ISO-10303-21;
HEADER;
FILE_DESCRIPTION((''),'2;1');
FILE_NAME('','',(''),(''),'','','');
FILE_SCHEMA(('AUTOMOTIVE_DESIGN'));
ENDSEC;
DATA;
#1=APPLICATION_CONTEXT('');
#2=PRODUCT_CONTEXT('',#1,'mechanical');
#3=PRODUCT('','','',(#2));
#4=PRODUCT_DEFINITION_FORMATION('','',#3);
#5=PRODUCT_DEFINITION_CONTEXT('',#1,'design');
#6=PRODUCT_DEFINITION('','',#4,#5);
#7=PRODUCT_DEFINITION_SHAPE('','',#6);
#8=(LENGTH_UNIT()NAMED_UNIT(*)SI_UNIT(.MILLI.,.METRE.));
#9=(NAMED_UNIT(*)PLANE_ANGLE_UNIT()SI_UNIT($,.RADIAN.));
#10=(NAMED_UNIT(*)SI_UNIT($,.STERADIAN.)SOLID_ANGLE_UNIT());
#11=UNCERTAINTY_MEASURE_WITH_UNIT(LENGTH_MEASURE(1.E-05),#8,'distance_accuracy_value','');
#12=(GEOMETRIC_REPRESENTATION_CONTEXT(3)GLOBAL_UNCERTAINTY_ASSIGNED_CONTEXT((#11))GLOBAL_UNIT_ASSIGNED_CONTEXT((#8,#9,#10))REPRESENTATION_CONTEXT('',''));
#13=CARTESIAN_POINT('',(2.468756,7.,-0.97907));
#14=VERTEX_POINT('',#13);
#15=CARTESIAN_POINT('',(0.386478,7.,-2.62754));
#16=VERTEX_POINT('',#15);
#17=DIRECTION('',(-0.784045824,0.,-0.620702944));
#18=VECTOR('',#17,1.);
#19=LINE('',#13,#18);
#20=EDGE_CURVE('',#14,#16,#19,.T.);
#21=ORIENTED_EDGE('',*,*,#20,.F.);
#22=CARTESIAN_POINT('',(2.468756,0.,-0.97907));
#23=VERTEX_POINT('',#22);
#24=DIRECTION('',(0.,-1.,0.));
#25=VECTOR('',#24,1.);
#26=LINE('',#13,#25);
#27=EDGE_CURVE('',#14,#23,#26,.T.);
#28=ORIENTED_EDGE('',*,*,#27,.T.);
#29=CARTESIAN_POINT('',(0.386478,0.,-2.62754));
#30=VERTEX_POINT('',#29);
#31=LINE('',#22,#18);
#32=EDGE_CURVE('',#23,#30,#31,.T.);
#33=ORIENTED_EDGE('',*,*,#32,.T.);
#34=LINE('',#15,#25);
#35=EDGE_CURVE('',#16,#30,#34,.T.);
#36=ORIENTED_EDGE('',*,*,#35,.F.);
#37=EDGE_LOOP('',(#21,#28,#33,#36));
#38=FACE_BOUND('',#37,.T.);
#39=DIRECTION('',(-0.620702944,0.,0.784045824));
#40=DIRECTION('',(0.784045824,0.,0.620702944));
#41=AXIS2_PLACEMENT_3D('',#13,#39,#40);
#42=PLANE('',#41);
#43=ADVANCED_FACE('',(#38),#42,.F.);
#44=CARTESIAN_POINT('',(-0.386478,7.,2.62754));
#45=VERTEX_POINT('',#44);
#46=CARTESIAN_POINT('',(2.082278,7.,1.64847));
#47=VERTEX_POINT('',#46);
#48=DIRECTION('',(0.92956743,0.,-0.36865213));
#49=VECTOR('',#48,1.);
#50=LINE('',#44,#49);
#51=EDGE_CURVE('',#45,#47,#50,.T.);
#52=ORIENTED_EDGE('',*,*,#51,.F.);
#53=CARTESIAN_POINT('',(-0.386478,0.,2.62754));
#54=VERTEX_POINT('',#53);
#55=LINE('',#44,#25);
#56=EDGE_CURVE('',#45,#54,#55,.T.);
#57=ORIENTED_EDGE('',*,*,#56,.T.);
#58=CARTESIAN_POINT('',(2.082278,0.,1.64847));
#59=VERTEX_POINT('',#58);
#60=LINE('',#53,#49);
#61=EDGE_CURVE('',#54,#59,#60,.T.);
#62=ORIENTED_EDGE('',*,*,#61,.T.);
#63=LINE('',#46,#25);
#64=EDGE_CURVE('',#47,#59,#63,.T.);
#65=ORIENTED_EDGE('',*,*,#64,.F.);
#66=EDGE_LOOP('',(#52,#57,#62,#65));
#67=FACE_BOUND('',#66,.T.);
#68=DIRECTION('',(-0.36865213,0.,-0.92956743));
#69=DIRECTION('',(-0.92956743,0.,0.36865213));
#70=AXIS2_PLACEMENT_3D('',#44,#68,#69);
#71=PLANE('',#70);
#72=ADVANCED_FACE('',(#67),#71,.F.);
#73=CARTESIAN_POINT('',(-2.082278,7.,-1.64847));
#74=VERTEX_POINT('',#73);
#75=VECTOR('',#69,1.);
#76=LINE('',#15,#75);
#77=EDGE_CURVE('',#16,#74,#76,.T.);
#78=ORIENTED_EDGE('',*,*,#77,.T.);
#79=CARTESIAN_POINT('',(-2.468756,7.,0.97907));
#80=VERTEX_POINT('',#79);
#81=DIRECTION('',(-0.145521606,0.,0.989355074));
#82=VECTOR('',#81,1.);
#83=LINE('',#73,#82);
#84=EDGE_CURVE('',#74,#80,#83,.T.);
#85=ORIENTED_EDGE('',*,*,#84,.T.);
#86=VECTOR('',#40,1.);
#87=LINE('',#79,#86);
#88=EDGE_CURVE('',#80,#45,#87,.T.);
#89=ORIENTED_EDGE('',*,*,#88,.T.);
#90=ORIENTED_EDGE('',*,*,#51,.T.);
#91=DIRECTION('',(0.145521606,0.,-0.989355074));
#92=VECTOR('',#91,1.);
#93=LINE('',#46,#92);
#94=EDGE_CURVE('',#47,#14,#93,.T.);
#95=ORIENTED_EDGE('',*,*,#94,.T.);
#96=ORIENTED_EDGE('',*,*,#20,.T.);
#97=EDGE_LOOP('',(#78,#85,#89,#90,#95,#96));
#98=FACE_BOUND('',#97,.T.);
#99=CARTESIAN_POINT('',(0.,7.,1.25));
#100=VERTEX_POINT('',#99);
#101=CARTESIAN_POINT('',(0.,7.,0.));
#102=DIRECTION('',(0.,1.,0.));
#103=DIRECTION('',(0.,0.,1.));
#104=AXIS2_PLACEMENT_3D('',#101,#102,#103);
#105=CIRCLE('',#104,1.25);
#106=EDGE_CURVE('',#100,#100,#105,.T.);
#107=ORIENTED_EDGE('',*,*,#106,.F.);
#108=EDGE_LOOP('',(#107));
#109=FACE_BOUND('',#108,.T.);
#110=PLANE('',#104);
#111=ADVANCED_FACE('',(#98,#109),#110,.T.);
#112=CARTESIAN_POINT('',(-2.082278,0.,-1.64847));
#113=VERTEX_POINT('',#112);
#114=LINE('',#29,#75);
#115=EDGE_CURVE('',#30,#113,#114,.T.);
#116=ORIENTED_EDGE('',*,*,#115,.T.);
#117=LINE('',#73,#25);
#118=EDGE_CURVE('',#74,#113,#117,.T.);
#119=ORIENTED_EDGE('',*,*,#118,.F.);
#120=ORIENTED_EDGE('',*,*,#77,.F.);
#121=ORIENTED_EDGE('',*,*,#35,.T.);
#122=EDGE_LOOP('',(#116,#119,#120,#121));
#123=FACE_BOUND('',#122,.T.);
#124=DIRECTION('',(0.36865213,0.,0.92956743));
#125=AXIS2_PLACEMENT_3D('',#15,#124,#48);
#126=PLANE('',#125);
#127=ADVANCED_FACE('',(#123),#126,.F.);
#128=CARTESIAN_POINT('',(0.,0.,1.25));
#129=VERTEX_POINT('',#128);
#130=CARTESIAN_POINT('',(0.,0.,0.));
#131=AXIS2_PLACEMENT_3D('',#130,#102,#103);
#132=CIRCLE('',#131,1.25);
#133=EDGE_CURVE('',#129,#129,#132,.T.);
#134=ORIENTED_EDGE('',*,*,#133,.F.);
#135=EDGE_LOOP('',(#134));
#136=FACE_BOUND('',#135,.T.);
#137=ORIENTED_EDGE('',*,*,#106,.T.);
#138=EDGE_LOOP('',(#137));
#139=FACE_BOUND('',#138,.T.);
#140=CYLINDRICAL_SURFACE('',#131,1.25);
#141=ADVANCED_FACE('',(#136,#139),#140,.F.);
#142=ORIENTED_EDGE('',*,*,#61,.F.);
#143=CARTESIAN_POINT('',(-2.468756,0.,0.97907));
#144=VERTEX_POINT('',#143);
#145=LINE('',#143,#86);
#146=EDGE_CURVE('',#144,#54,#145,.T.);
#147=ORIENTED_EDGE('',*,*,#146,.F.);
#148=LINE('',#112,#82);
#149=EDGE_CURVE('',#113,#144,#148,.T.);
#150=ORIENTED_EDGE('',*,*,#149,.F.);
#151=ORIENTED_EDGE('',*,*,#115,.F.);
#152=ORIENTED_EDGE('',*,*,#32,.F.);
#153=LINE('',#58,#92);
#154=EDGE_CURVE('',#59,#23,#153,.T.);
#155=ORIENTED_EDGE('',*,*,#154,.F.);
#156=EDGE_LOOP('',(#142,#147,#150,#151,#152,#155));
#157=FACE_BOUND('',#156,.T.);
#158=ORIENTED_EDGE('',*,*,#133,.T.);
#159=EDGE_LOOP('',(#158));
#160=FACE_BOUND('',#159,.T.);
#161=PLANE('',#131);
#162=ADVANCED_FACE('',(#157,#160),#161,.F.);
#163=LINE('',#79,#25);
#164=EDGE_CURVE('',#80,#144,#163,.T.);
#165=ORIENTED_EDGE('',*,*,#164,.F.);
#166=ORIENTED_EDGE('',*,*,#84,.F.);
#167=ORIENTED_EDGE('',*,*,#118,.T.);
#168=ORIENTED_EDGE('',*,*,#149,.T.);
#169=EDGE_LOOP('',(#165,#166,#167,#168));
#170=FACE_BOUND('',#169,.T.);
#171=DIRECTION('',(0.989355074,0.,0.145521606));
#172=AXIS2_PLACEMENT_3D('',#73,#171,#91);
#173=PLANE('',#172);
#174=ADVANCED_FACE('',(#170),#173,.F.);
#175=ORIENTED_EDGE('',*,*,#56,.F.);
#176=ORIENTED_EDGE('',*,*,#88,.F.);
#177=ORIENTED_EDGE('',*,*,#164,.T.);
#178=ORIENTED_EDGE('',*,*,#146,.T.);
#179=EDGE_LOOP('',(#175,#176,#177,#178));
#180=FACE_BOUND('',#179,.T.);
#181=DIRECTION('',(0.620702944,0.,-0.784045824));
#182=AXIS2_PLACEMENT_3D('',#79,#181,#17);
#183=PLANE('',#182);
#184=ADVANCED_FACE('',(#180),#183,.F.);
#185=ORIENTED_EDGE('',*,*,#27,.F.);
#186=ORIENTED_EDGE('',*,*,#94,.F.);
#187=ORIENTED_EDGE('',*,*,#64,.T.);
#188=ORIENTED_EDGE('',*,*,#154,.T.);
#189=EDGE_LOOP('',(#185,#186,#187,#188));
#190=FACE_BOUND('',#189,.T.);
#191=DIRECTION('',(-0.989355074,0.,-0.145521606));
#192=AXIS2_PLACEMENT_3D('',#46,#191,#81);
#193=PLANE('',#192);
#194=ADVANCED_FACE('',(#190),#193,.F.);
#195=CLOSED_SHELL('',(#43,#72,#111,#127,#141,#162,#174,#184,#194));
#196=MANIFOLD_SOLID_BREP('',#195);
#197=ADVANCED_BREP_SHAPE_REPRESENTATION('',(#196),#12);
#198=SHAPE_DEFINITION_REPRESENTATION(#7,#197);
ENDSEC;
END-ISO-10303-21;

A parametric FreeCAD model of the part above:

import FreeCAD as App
import Part
import Sketcher

V = App.Vector
Q = App.Units.Quantity

doc = App.newDocument("Part")
params = doc.addObject("Spreadsheet::Sheet", "Params")
for row, (alias, value) in enumerate([
    ("pad1_length", "7 mm"),
    ("sketch2_diameter", "2.5 mm"),
    ("pocket1_length", "7 mm"),
], start=1):
    params.set(f"A{row}", alias)
    params.set(f"B{row}", "=" + value)
    params.setAlias(f"B{row}", alias)

body = doc.addObject("PartDesign::Body", "Body")

sketch1 = body.newObject("Sketcher::SketchObject", "Sketch")
sketch1.AttachmentSupport = (doc.getObject("XZ_Plane"), [""])
sketch1.MapMode = "FlatFace"
sketch1.addGeometry(Part.LineSegment(V(2.082278, 1.64847, 0), V(2.468756, -0.97907, 0)), False)
sketch1.addGeometry(Part.LineSegment(V(2.468756, -0.97907, 0), V(0.386478, -2.62754, 0)), False)
sketch1.addGeometry(Part.LineSegment(V(0.386478, -2.62754, 0), V(-2.082278, -1.64847, 0)), False)
sketch1.addGeometry(Part.LineSegment(V(-2.082278, -1.64847, 0), V(-2.468756, 0.97907, 0)), False)
sketch1.addGeometry(Part.LineSegment(V(-2.468756, 0.97907, 0), V(-0.386478, 2.62754, 0)), False)
sketch1.addGeometry(Part.LineSegment(V(-0.386478, 2.62754, 0), V(2.082278, 1.64847, 0)), False)
sketch1.addConstraint(Sketcher.Constraint("Coincident", 0, 2, 1, 1))
sketch1.addConstraint(Sketcher.Constraint("Coincident", 1, 2, 2, 1))
sketch1.addConstraint(Sketcher.Constraint("Coincident", 2, 2, 3, 1))
sketch1.addConstraint(Sketcher.Constraint("Coincident", 3, 2, 4, 1))
sketch1.addConstraint(Sketcher.Constraint("Coincident", 4, 2, 5, 1))
sketch1.addConstraint(Sketcher.Constraint("Coincident", 5, 2, 0, 1))
sketch1.addConstraint(Sketcher.Constraint("Symmetric", 0, 2, 3, 2, -1, 1))
sketch1.addConstraint(Sketcher.Constraint("Symmetric", 1, 2, 4, 2, -1, 1))
sketch1.addConstraint(Sketcher.Constraint("Symmetric", 2, 2, 5, 2, -1, 1))
sketch1.addConstraint(Sketcher.Constraint("Equal", 0, 1))
sketch1.addConstraint(Sketcher.Constraint("Equal", 1, 2))
sketch1.addConstraint(Sketcher.Constraint("DistanceY", 2, 2, 0, 2, Q("0.669399 mm")))
sketch1.addConstraint(Sketcher.Constraint("DistanceX", 2, 2, 4, 2, Q("1.6958 mm")))
sketch1.addConstraint(Sketcher.Constraint("Distance", 0, Q("2.655811 mm")))
sketch1.addConstraint(Sketcher.Constraint("DistanceY", 0, 2, -1, 1, Q("0.97907 mm")))
pad1 = body.newObject("PartDesign::Pad", "Pad")
pad1.Profile = sketch1
pad1.setExpression("Length", "Params.pad1_length")
pad1.Reversed = True

sketch2 = body.newObject("Sketcher::SketchObject", "Sketch001")
sketch2.AttachmentSupport = (doc.getObject("XZ_Plane"), [""])
sketch2.MapMode = "FlatFace"
sketch2.AttachmentOffset = App.Placement(V(0, 0, -7), App.Rotation())
sketch2.addGeometry(Part.Circle(V(0, 0, 0), V(0, 0, 1), 1.25), False)
sketch2.addConstraint(Sketcher.Constraint("Coincident", 0, 3, -1, 1))
sketch2.addConstraint(Sketcher.Constraint("Diameter", 0, Q("2.5 mm")))
sketch2.setExpression("Constraints[1]", "Params.sketch2_diameter")
pocket1 = body.newObject("PartDesign::Pocket", "Pocket")
pocket1.Profile = sketch2
pocket1.setExpression("Length", "Params.pocket1_length")
pocket1.Reversed = True

doc.recompute()
